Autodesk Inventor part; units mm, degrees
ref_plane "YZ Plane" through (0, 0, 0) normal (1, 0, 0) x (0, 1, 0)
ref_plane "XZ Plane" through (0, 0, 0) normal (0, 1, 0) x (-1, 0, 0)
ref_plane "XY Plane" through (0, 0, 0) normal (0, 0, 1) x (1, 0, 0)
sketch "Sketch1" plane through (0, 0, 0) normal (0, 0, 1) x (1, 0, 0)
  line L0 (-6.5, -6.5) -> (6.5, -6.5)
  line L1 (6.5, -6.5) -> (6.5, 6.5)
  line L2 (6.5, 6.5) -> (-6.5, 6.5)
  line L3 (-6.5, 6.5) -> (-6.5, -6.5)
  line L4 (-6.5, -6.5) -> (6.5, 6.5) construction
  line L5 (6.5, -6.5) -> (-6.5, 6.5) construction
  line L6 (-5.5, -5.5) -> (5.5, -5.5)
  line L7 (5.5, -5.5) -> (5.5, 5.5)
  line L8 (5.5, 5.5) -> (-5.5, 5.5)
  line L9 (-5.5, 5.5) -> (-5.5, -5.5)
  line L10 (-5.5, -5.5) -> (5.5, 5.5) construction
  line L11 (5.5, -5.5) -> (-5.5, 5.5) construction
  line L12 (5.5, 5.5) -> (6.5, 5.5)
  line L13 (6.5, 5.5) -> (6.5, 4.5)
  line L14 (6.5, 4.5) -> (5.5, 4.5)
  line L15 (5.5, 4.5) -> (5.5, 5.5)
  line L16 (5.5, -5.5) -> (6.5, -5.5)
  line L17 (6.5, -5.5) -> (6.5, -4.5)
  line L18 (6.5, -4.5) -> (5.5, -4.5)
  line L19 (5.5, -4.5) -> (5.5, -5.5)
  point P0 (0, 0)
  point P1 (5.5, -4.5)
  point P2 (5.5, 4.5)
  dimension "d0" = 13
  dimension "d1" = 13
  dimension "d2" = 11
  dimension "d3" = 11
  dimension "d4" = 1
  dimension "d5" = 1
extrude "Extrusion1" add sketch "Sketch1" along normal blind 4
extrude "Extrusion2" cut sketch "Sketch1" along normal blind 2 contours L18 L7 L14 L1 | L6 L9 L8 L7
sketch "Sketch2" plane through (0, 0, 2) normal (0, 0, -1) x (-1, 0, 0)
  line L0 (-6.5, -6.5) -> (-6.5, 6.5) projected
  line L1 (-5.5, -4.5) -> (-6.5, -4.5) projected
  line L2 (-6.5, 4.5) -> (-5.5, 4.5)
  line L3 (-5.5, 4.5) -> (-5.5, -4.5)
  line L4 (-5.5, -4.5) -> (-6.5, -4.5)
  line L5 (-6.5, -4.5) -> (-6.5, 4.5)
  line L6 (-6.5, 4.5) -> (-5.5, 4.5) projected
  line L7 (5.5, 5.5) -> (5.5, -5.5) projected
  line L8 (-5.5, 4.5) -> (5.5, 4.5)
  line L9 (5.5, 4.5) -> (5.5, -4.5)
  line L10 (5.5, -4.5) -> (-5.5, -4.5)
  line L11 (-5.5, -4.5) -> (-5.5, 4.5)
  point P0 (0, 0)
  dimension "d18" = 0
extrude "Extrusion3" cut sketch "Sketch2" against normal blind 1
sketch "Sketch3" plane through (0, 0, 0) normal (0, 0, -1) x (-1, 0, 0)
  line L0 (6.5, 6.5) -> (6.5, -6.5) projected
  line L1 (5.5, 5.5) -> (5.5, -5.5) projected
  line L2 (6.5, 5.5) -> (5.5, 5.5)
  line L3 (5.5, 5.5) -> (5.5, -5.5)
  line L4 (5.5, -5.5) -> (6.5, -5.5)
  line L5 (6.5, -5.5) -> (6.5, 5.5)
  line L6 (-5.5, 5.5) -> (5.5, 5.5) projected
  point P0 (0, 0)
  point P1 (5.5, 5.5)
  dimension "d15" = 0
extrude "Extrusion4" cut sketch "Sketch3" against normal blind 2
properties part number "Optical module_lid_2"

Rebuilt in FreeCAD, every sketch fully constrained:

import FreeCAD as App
import Part
import Sketcher
from FreeCAD import Vector


def add_polygon(sketch, points):
    """Adds a closed chain of lines whose ends are joined by coincident constraints."""
    first, n = sketch.GeometryCount, len(points)
    for a, b in zip(points, points[1:] + points[:1]):
        sketch.addGeometry(Part.LineSegment(App.Vector(*a, 0), App.Vector(*b, 0)), False)
    for i in range(n):
        sketch.addConstraint(Sketcher.Constraint("Coincident", first + i, 2, first + (i + 1) % n, 1))

doc = App.newDocument("Part")
body = doc.addObject("PartDesign::Body", "Body")

sketch1 = body.newObject("Sketcher::SketchObject", "Sketch")
sketch1.AttachmentSupport = (doc.getObject("XY_Plane"), [""])
sketch1.MapMode = "FlatFace"
add_polygon(sketch1, [(-6, 6), (-6, -6), (6, -6), (6, 6)])
sketch1.addConstraint([
    Sketcher.Constraint("Vertical", 0),
    Sketcher.Constraint("Horizontal", 1),
    Sketcher.Constraint("Vertical", 2),
    Sketcher.Constraint("Horizontal", 3),
    Sketcher.Constraint("Symmetric", 0, 2, 2, 2, -1, 1),
    Sketcher.Constraint("Equal", 3, 0),
    Sketcher.Constraint("DistanceX", 1, 1, 1, 2, 13.0),
])
pad1 = body.newObject("PartDesign::Pad", "Pad")
pad1.Profile = sketch1
pad1.Length = 4

sketch2 = body.newObject("Sketcher::SketchObject", "Sketch001")
sketch2.AttachmentSupport = (doc.getObject("XY_Plane"), [""])
sketch2.MapMode = "FlatFace"
add_polygon(sketch2, [(5.5, -4.5), (6.5, -4.5), (6.5, 4.5), (5.5, 4.5), (5.5, 5.5), (-5.5, 5.5), (-5.5, -5.5), (5.5, -5.5)])
sketch2.addConstraint([
    Sketcher.Constraint("Horizontal", 0),
    Sketcher.Constraint("Vertical", 1),
    Sketcher.Constraint("Horizontal", 2),
    Sketcher.Constraint("Vertical", 3),
    Sketcher.Constraint("Horizontal", 4),
    Sketcher.Constraint("Vertical", 5),
    Sketcher.Constraint("Horizontal", 6),
    Sketcher.Constraint("Vertical", 7),
    Sketcher.Constraint("Symmetric", 3, 2, 5, 2, -1, 1),
    Sketcher.Constraint("Symmetric", 2, 2, 7, 2, -1),
    Sketcher.Constraint("Equal", 2, 3),
    Sketcher.Constraint("Equal", 6, 5),
    Sketcher.Constraint("DistanceX", 0, 1, 0, 2, 1.0),
    Sketcher.Constraint("DistanceX", 4, 2, 4, 1, 11.0),
])
pocket1 = body.newObject("PartDesign::Pocket", "Pocket")
pocket1.Profile = sketch2
pocket1.Length = 2
pocket1.Reversed = True

sketch3 = body.newObject("Sketcher::SketchObject", "Sketch002")
sketch3.AttachmentSupport = (doc.getObject("XY_Plane"), [""])
sketch3.MapMode = "FlatFace"
sketch3.AttachmentOffset = App.Placement(Vector(0, 0, 2), App.Rotation())
add_polygon(sketch3, [(6, 4), (6, -4), (-6, -4), (-6, 4)])
sketch3.addConstraint([
    Sketcher.Constraint("Vertical", 0),
    Sketcher.Constraint("Horizontal", 1),
    Sketcher.Constraint("Vertical", 2),
    Sketcher.Constraint("Horizontal", 3),
    Sketcher.Constraint("DistanceX", 1, 2, 1, 1, 12.0),
    Sketcher.Constraint("DistanceY", 0, 2, 0, 1, 9.0),
    Sketcher.Constraint("DistanceX", -1, 1, 0, 2, 6.5),
    Sketcher.Constraint("DistanceY", 0, 2, -1, 1, 4.5),
])
pocket2 = body.newObject("PartDesign::Pocket", "Pocket001")
pocket2.Profile = sketch3
pocket2.Length = 1
pocket2.Reversed = True

sketch4 = body.newObject("Sketcher::SketchObject", "Sketch003")
sketch4.AttachmentSupport = (doc.getObject("XY_Plane"), [""])
sketch4.MapMode = "FlatFace"
add_polygon(sketch4, [(-6.5, -5.5), (-6.5, 5.5), (-5.5, 5.5), (-5.5, -5.5)])
sketch4.addConstraint([
    Sketcher.Constraint("Vertical", 0),
    Sketcher.Constraint("Horizontal", 1),
    Sketcher.Constraint("Vertical", 2),
    Sketcher.Constraint("Horizontal", 3),
    Sketcher.Constraint("DistanceX", 1, 1, 1, 2, 1.0),
    Sketcher.Constraint("DistanceY", 0, 1, 0, 2, 11.0),
    Sketcher.Constraint("DistanceX", 0, 2, -1, 1, 6.5),
    Sketcher.Constraint("DistanceY", -1, 1, 0, 2, 5.5),
])
pocket3 = body.newObject("PartDesign::Pocket", "Pocket002")
pocket3.Profile = sketch4
pocket3.Length = 2
pocket3.Reversed = True

doc.recompute()
